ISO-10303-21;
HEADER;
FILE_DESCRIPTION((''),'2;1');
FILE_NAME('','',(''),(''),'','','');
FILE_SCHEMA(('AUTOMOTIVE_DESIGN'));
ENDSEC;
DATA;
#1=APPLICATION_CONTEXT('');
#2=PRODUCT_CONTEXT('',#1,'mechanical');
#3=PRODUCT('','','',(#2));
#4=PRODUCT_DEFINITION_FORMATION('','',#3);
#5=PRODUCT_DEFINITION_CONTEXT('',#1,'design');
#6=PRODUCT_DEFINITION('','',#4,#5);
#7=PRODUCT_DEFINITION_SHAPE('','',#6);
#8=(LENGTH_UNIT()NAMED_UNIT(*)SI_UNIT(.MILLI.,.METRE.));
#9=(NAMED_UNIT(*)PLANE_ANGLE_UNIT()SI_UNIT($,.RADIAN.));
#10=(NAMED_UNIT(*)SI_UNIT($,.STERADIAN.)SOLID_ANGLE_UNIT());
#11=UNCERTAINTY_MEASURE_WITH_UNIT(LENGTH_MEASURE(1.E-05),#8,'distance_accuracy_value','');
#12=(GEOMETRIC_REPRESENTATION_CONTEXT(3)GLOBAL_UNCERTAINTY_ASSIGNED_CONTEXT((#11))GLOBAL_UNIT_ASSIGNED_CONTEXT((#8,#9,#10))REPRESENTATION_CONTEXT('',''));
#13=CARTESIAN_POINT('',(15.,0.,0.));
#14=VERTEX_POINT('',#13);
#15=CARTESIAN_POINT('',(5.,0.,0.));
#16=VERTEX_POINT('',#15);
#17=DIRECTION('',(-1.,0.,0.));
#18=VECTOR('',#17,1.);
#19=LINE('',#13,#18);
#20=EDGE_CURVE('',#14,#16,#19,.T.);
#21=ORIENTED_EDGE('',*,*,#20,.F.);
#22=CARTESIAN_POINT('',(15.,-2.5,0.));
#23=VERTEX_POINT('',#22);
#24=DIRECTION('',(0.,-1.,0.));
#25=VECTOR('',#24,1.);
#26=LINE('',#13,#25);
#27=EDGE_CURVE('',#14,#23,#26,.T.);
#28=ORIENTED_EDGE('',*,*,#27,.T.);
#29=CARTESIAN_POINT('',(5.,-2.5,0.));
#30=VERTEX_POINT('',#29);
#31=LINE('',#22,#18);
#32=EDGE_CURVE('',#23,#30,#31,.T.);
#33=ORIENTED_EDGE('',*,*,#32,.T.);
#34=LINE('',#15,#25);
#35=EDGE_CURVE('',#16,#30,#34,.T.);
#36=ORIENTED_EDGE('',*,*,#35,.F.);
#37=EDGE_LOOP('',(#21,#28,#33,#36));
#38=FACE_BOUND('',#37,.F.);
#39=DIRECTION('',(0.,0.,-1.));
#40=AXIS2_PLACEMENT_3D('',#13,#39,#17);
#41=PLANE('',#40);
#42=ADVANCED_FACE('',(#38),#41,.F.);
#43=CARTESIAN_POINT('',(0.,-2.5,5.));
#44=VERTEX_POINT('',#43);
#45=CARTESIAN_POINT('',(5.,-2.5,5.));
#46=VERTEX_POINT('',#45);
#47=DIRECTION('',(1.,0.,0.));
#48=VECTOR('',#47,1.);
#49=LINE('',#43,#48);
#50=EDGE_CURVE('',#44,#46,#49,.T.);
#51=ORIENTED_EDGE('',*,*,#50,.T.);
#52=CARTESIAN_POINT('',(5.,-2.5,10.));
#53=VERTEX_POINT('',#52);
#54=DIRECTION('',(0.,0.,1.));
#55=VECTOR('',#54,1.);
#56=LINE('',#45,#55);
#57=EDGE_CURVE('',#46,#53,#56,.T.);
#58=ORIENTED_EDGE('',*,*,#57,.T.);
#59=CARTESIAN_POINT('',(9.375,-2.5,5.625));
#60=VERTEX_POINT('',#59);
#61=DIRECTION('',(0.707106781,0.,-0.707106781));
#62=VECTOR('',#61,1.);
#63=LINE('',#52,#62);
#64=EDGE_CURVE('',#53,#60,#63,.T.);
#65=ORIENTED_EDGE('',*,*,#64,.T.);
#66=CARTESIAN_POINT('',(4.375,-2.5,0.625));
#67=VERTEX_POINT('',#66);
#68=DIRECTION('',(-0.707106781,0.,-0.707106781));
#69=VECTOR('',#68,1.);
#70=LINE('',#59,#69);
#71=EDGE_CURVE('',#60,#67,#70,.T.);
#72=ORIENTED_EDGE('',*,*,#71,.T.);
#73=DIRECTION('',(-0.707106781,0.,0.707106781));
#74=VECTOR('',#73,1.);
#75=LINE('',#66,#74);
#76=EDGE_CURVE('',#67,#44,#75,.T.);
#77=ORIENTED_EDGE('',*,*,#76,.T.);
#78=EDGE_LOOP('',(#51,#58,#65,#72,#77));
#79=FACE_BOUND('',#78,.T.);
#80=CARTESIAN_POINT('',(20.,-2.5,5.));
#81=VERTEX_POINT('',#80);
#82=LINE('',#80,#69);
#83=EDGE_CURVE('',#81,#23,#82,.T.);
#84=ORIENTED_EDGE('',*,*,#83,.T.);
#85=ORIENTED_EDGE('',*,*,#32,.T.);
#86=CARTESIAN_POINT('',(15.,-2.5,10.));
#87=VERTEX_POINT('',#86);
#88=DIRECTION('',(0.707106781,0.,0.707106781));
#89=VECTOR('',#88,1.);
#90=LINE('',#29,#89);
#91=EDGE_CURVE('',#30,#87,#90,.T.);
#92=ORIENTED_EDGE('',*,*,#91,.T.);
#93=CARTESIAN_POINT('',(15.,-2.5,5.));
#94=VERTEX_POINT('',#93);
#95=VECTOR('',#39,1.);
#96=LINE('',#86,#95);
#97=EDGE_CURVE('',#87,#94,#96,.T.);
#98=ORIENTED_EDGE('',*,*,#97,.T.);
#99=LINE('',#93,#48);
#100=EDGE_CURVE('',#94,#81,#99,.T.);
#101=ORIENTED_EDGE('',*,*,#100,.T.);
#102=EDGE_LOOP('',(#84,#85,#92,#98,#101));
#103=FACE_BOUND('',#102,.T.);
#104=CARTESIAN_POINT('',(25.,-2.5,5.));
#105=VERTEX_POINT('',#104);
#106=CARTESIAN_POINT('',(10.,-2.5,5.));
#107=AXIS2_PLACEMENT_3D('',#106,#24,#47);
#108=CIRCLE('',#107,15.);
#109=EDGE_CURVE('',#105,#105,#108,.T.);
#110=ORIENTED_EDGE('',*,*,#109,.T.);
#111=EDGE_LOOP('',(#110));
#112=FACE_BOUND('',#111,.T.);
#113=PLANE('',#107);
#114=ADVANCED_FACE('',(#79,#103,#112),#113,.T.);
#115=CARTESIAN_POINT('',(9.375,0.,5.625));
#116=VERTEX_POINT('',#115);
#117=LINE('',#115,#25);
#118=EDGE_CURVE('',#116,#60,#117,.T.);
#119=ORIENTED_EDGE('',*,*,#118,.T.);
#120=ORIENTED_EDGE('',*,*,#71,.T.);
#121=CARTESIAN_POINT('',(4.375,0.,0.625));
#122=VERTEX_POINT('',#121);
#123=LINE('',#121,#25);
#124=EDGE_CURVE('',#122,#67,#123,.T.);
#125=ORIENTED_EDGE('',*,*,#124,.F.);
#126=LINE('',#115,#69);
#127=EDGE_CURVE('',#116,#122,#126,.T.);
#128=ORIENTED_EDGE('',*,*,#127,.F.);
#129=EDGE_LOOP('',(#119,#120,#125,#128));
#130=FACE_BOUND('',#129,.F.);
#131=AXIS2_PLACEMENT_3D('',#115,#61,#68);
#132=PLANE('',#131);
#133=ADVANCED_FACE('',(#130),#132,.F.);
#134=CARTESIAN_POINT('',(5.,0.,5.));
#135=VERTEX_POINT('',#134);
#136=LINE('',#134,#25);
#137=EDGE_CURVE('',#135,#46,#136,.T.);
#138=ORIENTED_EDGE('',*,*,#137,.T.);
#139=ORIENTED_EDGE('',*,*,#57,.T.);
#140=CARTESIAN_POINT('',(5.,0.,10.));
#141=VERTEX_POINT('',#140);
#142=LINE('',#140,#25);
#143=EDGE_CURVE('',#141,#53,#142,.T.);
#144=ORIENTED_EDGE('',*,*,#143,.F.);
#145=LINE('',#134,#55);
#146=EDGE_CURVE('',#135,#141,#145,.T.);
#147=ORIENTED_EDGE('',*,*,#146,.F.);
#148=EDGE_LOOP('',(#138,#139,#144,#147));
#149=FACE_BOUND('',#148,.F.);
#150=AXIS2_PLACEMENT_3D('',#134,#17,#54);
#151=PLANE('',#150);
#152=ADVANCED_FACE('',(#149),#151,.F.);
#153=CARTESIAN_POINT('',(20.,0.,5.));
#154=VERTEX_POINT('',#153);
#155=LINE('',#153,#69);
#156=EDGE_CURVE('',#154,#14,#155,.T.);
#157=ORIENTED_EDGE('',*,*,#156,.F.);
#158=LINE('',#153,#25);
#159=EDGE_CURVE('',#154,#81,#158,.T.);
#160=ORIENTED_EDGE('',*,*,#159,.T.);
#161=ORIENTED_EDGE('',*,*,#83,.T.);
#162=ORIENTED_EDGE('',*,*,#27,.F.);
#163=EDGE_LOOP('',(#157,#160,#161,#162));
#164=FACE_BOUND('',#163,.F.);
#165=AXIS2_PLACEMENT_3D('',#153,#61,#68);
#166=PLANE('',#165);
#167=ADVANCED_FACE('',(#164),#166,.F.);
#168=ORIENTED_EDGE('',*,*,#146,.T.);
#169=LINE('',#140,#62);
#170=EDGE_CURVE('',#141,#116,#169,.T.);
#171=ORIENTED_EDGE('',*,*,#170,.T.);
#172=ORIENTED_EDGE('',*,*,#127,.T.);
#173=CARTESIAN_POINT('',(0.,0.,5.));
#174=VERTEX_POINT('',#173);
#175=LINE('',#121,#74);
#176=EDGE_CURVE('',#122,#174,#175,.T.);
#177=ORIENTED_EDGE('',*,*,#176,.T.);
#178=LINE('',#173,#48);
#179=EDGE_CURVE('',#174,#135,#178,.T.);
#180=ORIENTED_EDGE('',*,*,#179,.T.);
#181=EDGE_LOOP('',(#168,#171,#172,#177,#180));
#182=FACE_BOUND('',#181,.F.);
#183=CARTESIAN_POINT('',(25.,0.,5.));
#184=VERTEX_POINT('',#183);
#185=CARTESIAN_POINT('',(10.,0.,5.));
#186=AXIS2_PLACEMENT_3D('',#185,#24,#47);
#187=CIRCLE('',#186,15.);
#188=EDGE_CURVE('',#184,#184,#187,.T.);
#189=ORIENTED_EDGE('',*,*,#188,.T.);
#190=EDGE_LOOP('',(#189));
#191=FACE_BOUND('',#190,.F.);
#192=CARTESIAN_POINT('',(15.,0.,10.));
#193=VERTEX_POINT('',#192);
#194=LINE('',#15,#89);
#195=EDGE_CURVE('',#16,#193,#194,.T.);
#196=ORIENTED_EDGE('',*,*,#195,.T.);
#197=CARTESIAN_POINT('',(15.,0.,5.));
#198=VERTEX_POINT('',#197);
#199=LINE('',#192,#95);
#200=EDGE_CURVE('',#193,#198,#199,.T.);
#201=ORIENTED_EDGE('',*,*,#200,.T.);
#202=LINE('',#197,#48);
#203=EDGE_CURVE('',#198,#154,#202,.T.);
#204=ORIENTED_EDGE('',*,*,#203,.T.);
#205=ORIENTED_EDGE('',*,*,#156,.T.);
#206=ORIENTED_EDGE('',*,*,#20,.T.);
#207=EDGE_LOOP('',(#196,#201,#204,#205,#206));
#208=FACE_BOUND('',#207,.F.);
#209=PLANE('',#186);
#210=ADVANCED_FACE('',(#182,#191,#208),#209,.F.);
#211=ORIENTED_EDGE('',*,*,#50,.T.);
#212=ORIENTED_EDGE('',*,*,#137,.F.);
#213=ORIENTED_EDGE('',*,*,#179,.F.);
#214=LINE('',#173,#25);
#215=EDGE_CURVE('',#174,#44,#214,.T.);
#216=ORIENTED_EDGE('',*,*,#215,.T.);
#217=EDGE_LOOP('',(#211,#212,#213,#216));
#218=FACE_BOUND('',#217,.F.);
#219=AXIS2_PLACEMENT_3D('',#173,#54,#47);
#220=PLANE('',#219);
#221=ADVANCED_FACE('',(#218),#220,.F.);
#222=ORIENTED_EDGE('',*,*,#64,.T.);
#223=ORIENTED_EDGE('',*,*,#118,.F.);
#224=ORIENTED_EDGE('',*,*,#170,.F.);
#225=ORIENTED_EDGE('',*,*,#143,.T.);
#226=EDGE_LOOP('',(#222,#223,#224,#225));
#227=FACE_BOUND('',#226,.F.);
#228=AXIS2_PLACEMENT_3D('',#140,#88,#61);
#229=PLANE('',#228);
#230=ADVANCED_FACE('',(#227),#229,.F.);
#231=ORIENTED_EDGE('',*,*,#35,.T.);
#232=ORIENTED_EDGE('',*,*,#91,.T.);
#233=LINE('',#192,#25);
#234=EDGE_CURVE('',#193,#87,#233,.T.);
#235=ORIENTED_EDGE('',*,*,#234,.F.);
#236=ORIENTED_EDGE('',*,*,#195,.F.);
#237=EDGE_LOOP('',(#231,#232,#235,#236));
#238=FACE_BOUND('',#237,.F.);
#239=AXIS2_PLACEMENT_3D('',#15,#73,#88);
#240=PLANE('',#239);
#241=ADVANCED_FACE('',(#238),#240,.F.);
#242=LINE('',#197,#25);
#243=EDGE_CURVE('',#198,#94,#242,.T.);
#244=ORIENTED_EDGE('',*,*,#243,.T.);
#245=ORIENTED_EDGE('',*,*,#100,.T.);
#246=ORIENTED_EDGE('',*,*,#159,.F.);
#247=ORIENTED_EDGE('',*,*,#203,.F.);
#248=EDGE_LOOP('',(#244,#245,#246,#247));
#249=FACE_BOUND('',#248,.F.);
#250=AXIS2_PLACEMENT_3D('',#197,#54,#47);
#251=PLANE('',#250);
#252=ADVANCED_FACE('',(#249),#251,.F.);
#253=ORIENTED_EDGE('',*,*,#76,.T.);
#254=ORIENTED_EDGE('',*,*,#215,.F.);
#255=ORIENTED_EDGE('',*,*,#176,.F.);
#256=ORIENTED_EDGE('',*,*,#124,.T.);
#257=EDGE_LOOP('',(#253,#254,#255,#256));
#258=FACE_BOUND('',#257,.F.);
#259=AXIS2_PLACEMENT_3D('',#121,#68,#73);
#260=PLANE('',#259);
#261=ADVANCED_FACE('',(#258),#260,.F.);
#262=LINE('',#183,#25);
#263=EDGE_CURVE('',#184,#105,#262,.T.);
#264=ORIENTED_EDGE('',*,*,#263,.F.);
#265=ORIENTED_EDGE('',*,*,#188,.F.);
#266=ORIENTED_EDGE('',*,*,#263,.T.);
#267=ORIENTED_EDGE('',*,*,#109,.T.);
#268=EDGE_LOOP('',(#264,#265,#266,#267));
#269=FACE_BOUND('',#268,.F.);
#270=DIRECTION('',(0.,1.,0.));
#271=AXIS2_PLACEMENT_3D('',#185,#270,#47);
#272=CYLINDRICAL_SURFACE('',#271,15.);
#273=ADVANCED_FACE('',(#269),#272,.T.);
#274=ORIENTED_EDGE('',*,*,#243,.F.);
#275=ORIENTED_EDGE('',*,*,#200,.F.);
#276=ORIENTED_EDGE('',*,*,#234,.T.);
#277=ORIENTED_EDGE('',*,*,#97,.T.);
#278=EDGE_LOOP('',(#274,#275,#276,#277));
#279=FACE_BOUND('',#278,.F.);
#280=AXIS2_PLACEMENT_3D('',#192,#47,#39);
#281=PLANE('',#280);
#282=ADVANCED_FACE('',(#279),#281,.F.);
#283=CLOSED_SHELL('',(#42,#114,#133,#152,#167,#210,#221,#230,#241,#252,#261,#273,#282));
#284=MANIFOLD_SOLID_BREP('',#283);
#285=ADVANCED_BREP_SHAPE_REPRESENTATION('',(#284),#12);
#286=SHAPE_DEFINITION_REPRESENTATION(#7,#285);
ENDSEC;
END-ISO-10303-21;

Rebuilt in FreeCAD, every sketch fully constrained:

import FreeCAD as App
import Part
import Sketcher

V = App.Vector
Q = App.Units.Quantity


def add_polygon(sketch, points):
    """Adds a closed chain of lines whose ends are joined by coincident constraints."""
    first, n = sketch.GeometryCount, len(points)
    for a, b in zip(points, points[1:] + points[:1]):
        sketch.addGeometry(Part.LineSegment(App.Vector(*a, 0), App.Vector(*b, 0)), False)
    for i in range(n):
        sketch.addConstraint(Sketcher.Constraint("Coincident", first + i, 2, first + (i + 1) % n, 1))

doc = App.newDocument("Part")
body = doc.addObject("PartDesign::Body", "Body")

sketch1 = body.newObject("Sketcher::SketchObject", "Sketch")
sketch1.AttachmentSupport = (doc.getObject("XZ_Plane"), [""])
sketch1.MapMode = "FlatFace"
sketch1.addGeometry(Part.Circle(V(10, 5, 0), V(0, 0, 1), 15), False)
add_polygon(sketch1, [(9.375, 5.625), (4.375, 0.625), (0, 5), (5, 5), (5, 10)])
add_polygon(sketch1, [(20, 5), (15, 0), (5, 0), (15, 10), (15, 5)])
sketch1.addConstraint([
    Sketcher.Constraint("Horizontal", 3),
    Sketcher.Constraint("Vertical", 4),
    Sketcher.Constraint("Horizontal", 7),
    Sketcher.Constraint("Vertical", 9),
    Sketcher.Constraint("Horizontal", 10),
    Sketcher.Constraint("PointOnObject", 2, 2, -2),
    Sketcher.Constraint("PointOnObject", 6, 2, -1),
    Sketcher.Constraint("Perpendicular", 1, 2),
    Sketcher.Constraint("Parallel", 2, 5),
    Sketcher.Constraint("Perpendicular", 5, 6),
    Sketcher.Constraint("Parallel", 6, 8),
    Sketcher.Constraint("Horizontal", 0, 3, 2, 2),
    Sketcher.Constraint("Horizontal", 4, 2, 8, 2),
    Sketcher.Constraint("Horizontal", 3, 2, 9, 2),
    Sketcher.Constraint("Vertical", 4, 2, 7, 2),
    Sketcher.Constraint("Vertical", 6, 2, 8, 2),
    Sketcher.Constraint("Equal", 3, 10),
    Sketcher.Constraint("Equal", 10, 4),
    Sketcher.Constraint("Equal", 2, 5),
    Sketcher.Constraint("Diameter", 0, Q("30 mm")),
    Sketcher.Constraint("DistanceX", 3, 1, 3, 2, Q("5 mm")),
    Sketcher.Constraint("DistanceX", -1, 1, 0, 3, Q("10 mm")),
    Sketcher.Constraint("DistanceX", -1, 1, 1, 2, Q("4.375 mm")),
])
pad1 = body.newObject("PartDesign::Pad", "Pad")
pad1.Profile = sketch1
pad1.Length = 2.5

doc.recompute()
